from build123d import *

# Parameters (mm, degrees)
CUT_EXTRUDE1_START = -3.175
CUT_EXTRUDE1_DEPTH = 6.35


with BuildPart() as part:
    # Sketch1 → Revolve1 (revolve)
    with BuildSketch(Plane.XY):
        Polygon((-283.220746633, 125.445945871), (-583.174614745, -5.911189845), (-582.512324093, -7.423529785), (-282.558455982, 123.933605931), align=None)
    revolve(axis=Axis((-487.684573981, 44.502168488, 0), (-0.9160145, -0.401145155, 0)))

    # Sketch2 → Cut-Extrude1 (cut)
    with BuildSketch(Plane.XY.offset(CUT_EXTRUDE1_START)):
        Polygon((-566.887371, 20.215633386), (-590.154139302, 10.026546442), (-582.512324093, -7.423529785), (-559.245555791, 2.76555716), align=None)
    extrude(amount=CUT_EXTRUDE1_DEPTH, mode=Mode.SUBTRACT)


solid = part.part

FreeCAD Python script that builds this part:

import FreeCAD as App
import Part
import Sketcher
from FreeCAD import Vector
Q = App.Units.Quantity

doc = App.newDocument("Part")
params = doc.addObject("Spreadsheet::Sheet", "Params")
for row, (alias, value) in enumerate([
    ("sketch1_length", "0.065 in"),
    ("revolution_angle", "360 deg"),
    ("sketch2_length", "1 in"),
    ("sketch2_length2", "0.75 in"),
    ("pocket1_length", "0.25 in"),
], start=1):
    params.set(f"A{row}", alias)
    params.set(f"B{row}", "=" + value)
    params.setAlias(f"B{row}", alias)

body = doc.addObject("PartDesign::Body", "Body")

sketch1 = doc.addObject("Sketcher::SketchObject", "Sketch")
body.addObject(sketch1)
sketch1.AttachmentSupport = (doc.XY_Plane, [""])
sketch1.MapMode = "FlatFace"
sketch1.addGeometry([
    Part.LineSegment(Vector(-283.2, 125.4, 0), Vector(-583.2, -5.9, 0)),
    Part.LineSegment(Vector(-583.2, -5.9, 0), Vector(-582.5, -7.4, 0)),
    Part.LineSegment(Vector(-582.5, -7.4, 0), Vector(-282.6, 123.9, 0)),
    Part.LineSegment(Vector(-282.6, 123.9, 0), Vector(-283.2, 125.4, 0)),
], False)
sketch1.addGeometry(Part.LineSegment(Vector(-286.4, 132.7, 0), Vector(-586.3, 1.3, 0)), True)
sketch1.addConstraint([
    Sketcher.Constraint("Coincident", 0, 2, 1, 1),
    Sketcher.Constraint("Coincident", 1, 2, 2, 1),
    Sketcher.Constraint("Coincident", 2, 2, 3, 1),
    Sketcher.Constraint("Coincident", 3, 2, 0, 1),
    Sketcher.Constraint("Perpendicular", 0, 1),
    Sketcher.Constraint("Perpendicular", 1, 2),
    Sketcher.Constraint("Perpendicular", 2, 3),
    Sketcher.Constraint("Perpendicular", 3, 4),
    Sketcher.Constraint("Equal", 2, 4),
    Sketcher.Constraint("Distance", 1, Q("0.065 in")),
    Sketcher.Constraint("DistanceY", 0, 2, 2, 2, Q("5.1119998 in")),
    Sketcher.Constraint("DistanceY", 3, 2, 4, 1, Q("7.212698 mm")),
    Sketcher.Constraint("Distance", 0, Q("327.455371 mm")),
    Sketcher.Constraint("DistanceY", 0, 2, -1, 1, Q("5.91119 mm")),
    Sketcher.Constraint("DistanceX", 4, 2, -1, 1, Q("586.333232 mm")),
    Sketcher.Constraint("DistanceX", 0, 2, 4, 1, Q("296.795251 mm")),
])
sketch1.setExpression("Constraints[9]", "Params.sketch1_length")
revolution = doc.addObject("PartDesign::Revolution", "Revolution")
body.addObject(revolution)
revolution.Profile = sketch1
revolution.ReferenceAxis = (sketch1, ["Axis0"])
revolution.setExpression("Angle", "Params.revolution_angle")

sketch2 = doc.addObject("Sketcher::SketchObject", "Sketch001")
body.addObject(sketch2)
sketch2.AttachmentSupport = (doc.XY_Plane, [""])
sketch2.MapMode = "FlatFace"
sketch2.AttachmentOffset = App.Placement(Vector(0, 0, -0.125 * 25.4), App.Rotation())
sketch2.addGeometry([
    Part.LineSegment(Vector(-567, 20, 0), Vector(-590, 10, 0)),
    Part.LineSegment(Vector(-590, 10, 0), Vector(-583, -7, 0)),
    Part.LineSegment(Vector(-583, -7, 0), Vector(-559, 3, 0)),
    Part.LineSegment(Vector(-559, 3, 0), Vector(-567, 20, 0)),
], False)
sketch2.addConstraint([
    Sketcher.Constraint("Coincident", 0, 2, 1, 1),
    Sketcher.Constraint("Coincident", 1, 2, 2, 1),
    Sketcher.Constraint("Coincident", 2, 2, 3, 1),
    Sketcher.Constraint("Coincident", 3, 2, 0, 1),
    Sketcher.Constraint("Perpendicular", 0, 1),
    Sketcher.Constraint("Perpendicular", 1, 2),
    Sketcher.Constraint("Perpendicular", 2, 3),
    Sketcher.Constraint("Distance", 0, Q("1 in")),
    Sketcher.Constraint("Distance", 1, Q("0.75 in")),
    Sketcher.Constraint("DistanceX", 0, 2, -1, 1, Q("590.154139 mm")),
    Sketcher.Constraint("DistanceY", 1, 2, -1, 1, Q("7.42353 mm")),
    Sketcher.Constraint("DistanceX", 3, 2, -1, 1, Q("566.887371 mm")),
])
sketch2.setExpression("Constraints[7]", "Params.sketch2_length")
sketch2.setExpression("Constraints[8]", "Params.sketch2_length2")
pocket1 = doc.addObject("PartDesign::Pocket", "Pocket")
body.addObject(pocket1)
pocket1.Profile = sketch2
pocket1.setExpression("Length", "Params.pocket1_length")
pocket1.Reversed = True

doc.recompute()
